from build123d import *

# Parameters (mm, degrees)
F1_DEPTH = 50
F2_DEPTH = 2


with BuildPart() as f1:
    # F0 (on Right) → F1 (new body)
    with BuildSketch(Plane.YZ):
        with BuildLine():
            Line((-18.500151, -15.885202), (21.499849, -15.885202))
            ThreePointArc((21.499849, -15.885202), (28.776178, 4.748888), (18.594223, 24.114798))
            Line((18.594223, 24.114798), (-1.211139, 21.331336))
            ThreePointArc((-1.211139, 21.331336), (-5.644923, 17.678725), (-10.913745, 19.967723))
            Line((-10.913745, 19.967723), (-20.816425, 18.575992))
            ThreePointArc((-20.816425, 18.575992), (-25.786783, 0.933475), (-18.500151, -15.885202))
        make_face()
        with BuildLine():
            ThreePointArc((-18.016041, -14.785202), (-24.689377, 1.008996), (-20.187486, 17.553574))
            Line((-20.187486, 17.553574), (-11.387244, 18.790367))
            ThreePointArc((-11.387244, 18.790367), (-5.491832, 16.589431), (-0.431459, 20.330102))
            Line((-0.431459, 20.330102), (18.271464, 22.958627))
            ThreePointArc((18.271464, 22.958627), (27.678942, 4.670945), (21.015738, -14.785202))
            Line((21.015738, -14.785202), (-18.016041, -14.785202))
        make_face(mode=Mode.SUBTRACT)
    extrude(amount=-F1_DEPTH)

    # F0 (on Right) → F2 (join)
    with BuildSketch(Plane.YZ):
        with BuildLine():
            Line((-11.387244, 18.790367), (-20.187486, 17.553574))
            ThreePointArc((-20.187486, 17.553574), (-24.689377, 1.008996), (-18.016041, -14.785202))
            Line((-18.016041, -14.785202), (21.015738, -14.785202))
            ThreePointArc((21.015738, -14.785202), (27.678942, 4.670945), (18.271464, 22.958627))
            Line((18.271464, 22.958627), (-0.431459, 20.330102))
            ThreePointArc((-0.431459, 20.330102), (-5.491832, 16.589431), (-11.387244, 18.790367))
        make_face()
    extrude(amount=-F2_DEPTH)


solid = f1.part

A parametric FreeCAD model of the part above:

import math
import FreeCAD as App
import Part
import Sketcher
from FreeCAD import Vector
Q = App.Units.Quantity

doc = App.newDocument("Part")
params = doc.addObject("Spreadsheet::Sheet", "Params")
for row, (alias, value) in enumerate([
    ("sketch1_radius", "5.5 mm"),
    ("sketch1_radius2", "6.600001 mm"),
    ("sketch1_width", "40 mm"),
    ("sketch1_length", "20.000001 mm"),
    ("sketch1_length2", "9.999999 mm"),
    ("pad1_length", "50 mm"),
    ("sketch2_radius", "6.600001 mm"),
    ("pad2_length", "2 mm"),
], start=1):
    params.set(f"A{row}", alias)
    params.set(f"B{row}", "=" + value)
    params.setAlias(f"B{row}", alias)

body = doc.addObject("PartDesign::Body", "Body")

sketch1 = body.newObject("Sketcher::SketchObject", "Sketch")
sketch1.AttachmentSupport = (doc.getObject("YZ_Plane"), [""])
sketch1.MapMode = "FlatFace"
sketch1.addGeometry([
    Part.LineSegment(Vector(-19, -16, 0), Vector(21, -16, 0)),
    Part.ArcOfCircle(Part.Circle(Vector(1, 3, 0), Vector(0, 0, 1), 27), math.radians(-43), math.radians(51)),
    Part.LineSegment(Vector(19, 24, 0), Vector(-1, 21, 0)),
    Part.ArcOfCircle(Part.Circle(Vector(-6, 23, 0), Vector(0, 0, 1), 5), math.radians(-145), math.radians(-19)),
    Part.LineSegment(Vector(-11, 20, 0), Vector(-21, 19, 0)),
    Part.ArcOfCircle(Part.Circle(Vector(1, 3, 0), Vector(0, 0, 1), 27), math.radians(145), math.radians(223)),
    Part.LineSegment(Vector(21, -15, 0), Vector(-18, -15, 0)),
    Part.ArcOfCircle(Part.Circle(Vector(1, 3, 0), Vector(0, 0, 1), 26), math.radians(146), math.radians(222)),
    Part.LineSegment(Vector(-20, 18, 0), Vector(-11, 19, 0)),
    Part.ArcOfCircle(Part.Circle(Vector(-6, 23, 0), Vector(0, 0, 1), 7), math.radians(-139), math.radians(-25)),
    Part.LineSegment(Vector(0, 20, 0), Vector(18, 23, 0)),
    Part.ArcOfCircle(Part.Circle(Vector(1, 3, 0), Vector(0, 0, 1), 26), math.radians(-42), math.radians(50)),
], False)
sketch1.addConstraint([
    Sketcher.Constraint("Coincident", 0, 2, 1, 1),
    Sketcher.Constraint("Coincident", 1, 2, 2, 1),
    Sketcher.Constraint("Coincident", 2, 2, 3, 2),
    Sketcher.Constraint("Coincident", 3, 1, 4, 1),
    Sketcher.Constraint("Coincident", 4, 2, 5, 1),
    Sketcher.Constraint("Coincident", 5, 2, 0, 1),
    Sketcher.Constraint("Coincident", 6, 2, 7, 2),
    Sketcher.Constraint("Coincident", 7, 1, 8, 1),
    Sketcher.Constraint("Coincident", 8, 2, 9, 1),
    Sketcher.Constraint("Coincident", 9, 2, 10, 1),
    Sketcher.Constraint("Coincident", 10, 2, 11, 2),
    Sketcher.Constraint("Coincident", 11, 1, 6, 1),
    Sketcher.Constraint("Horizontal", 0),
    Sketcher.Constraint("Horizontal", 6),
    Sketcher.Constraint("Coincident", 5, 3, 1, 3),
    Sketcher.Constraint("Coincident", 7, 3, 1, 3),
    Sketcher.Constraint("Coincident", 9, 3, 3, 3),
    Sketcher.Constraint("Coincident", 11, 3, 1, 3),
    Sketcher.Constraint("Equal", 7, 11),
    Sketcher.Constraint("Parallel", 2, 4),
    Sketcher.Constraint("Parallel", 4, 8),
    Sketcher.Constraint("Parallel", 8, 10),
    Sketcher.Constraint("Radius", 3, 5.5),
    Sketcher.Constraint("Radius", 9, 6.600001),
    Sketcher.Constraint("DistanceX", 0, 1, 0, 2, 40.0),
    Sketcher.Constraint("Angle", 2, Q("-172 deg")),
    Sketcher.Constraint("Distance", 2, 20.000001),
    Sketcher.Constraint("Distance", 4, 9.999999),
    Sketcher.Constraint("DistanceX", 11, 3, 0, 2, 19.999999),
    Sketcher.Constraint("Radius", 1, 27.3482),
    Sketcher.Constraint("Radius", 7, 26.248198),
    Sketcher.Constraint("DistanceY", 5, 2, 6, 2, 1.1),
    Sketcher.Constraint("DistanceY", -1, 1, 3, 3, 23.125199),
    Sketcher.Constraint("DistanceY", -1, 1, 1, 2, 24.114798),
    Sketcher.Constraint("DistanceY", 5, 2, -1, 1, 15.885202),
    Sketcher.Constraint("DistanceX", 8, 2, 3, 1, 0.473499),
    Sketcher.Constraint("DistanceY", 9, 2, 9, 3, 2.795099),
    Sketcher.Constraint("DistanceX", -1, 1, 11, 3, 1.49985),
])
sketch1.setExpression("Constraints[22]", "Params.sketch1_radius")
sketch1.setExpression("Constraints[23]", "Params.sketch1_radius2")
sketch1.setExpression("Constraints[24]", "Params.sketch1_width")
sketch1.setExpression("Constraints[26]", "Params.sketch1_length")
sketch1.setExpression("Constraints[27]", "Params.sketch1_length2")
pad1 = body.newObject("PartDesign::Pad", "Pad")
pad1.Profile = sketch1
pad1.setExpression("Length", "Params.pad1_length")
pad1.Reversed = True

sketch2 = body.newObject("Sketcher::SketchObject", "Sketch001")
sketch2.AttachmentSupport = (doc.getObject("YZ_Plane"), [""])
sketch2.MapMode = "FlatFace"
sketch2.addGeometry([
    Part.LineSegment(Vector(-11, 19, 0), Vector(-20, 18, 0)),
    Part.ArcOfCircle(Part.Circle(Vector(1, 3, 0), Vector(0, 0, 1), 26), math.radians(146), math.radians(222)),
    Part.LineSegment(Vector(-18, -15, 0), Vector(21, -15, 0)),
    Part.ArcOfCircle(Part.Circle(Vector(1, 3, 0), Vector(0, 0, 1), 26), math.radians(-42), math.radians(50)),
    Part.LineSegment(Vector(18, 23, 0), Vector(0, 20, 0)),
    Part.ArcOfCircle(Part.Circle(Vector(-6, 23, 0), Vector(0, 0, 1), 7), math.radians(-139), math.radians(-25)),
], False)
sketch2.addConstraint([
    Sketcher.Constraint("Coincident", 0, 2, 1, 1),
    Sketcher.Constraint("Coincident", 1, 2, 2, 1),
    Sketcher.Constraint("Coincident", 2, 2, 3, 1),
    Sketcher.Constraint("Coincident", 3, 2, 4, 1),
    Sketcher.Constraint("Coincident", 4, 2, 5, 2),
    Sketcher.Constraint("Coincident", 5, 1, 0, 1),
    Sketcher.Constraint("Horizontal", 2),
    Sketcher.Constraint("Coincident", 3, 3, 1, 3),
    Sketcher.Constraint("Equal", 1, 3),
    Sketcher.Constraint("Parallel", 0, 4),
    Sketcher.Constraint("Radius", 5, 6.600001),
    Sketcher.Constraint("Angle", 0, Q("-172.000002 deg")),
    Sketcher.Constraint("Radius", 1, 26.248198),
    Sketcher.Constraint("DistanceX", 2, 1, 2, 2, 39.031779),
    Sketcher.Constraint("DistanceY", -1, 1, 5, 3, 23.125201),
    Sketcher.Constraint("DistanceY", 1, 2, -1, 1, 14.785202),
    Sketcher.Constraint("DistanceY", -1, 1, 4, 2, 20.330102),
    Sketcher.Constraint("DistanceX", -1, 1, 3, 3, 1.49985),
    Sketcher.Constraint("DistanceX", 4, 2, -1, 1, 0.431459),
    Sketcher.Constraint("DistanceX", 0, 2, 5, 3, 13.777111),
])
sketch2.setExpression("Constraints[10]", "Params.sketch2_radius")
pad2 = body.newObject("PartDesign::Pad", "Pad001")
pad2.Profile = sketch2
pad2.setExpression("Length", "Params.pad2_length")
pad2.Reversed = True

doc.recompute()
